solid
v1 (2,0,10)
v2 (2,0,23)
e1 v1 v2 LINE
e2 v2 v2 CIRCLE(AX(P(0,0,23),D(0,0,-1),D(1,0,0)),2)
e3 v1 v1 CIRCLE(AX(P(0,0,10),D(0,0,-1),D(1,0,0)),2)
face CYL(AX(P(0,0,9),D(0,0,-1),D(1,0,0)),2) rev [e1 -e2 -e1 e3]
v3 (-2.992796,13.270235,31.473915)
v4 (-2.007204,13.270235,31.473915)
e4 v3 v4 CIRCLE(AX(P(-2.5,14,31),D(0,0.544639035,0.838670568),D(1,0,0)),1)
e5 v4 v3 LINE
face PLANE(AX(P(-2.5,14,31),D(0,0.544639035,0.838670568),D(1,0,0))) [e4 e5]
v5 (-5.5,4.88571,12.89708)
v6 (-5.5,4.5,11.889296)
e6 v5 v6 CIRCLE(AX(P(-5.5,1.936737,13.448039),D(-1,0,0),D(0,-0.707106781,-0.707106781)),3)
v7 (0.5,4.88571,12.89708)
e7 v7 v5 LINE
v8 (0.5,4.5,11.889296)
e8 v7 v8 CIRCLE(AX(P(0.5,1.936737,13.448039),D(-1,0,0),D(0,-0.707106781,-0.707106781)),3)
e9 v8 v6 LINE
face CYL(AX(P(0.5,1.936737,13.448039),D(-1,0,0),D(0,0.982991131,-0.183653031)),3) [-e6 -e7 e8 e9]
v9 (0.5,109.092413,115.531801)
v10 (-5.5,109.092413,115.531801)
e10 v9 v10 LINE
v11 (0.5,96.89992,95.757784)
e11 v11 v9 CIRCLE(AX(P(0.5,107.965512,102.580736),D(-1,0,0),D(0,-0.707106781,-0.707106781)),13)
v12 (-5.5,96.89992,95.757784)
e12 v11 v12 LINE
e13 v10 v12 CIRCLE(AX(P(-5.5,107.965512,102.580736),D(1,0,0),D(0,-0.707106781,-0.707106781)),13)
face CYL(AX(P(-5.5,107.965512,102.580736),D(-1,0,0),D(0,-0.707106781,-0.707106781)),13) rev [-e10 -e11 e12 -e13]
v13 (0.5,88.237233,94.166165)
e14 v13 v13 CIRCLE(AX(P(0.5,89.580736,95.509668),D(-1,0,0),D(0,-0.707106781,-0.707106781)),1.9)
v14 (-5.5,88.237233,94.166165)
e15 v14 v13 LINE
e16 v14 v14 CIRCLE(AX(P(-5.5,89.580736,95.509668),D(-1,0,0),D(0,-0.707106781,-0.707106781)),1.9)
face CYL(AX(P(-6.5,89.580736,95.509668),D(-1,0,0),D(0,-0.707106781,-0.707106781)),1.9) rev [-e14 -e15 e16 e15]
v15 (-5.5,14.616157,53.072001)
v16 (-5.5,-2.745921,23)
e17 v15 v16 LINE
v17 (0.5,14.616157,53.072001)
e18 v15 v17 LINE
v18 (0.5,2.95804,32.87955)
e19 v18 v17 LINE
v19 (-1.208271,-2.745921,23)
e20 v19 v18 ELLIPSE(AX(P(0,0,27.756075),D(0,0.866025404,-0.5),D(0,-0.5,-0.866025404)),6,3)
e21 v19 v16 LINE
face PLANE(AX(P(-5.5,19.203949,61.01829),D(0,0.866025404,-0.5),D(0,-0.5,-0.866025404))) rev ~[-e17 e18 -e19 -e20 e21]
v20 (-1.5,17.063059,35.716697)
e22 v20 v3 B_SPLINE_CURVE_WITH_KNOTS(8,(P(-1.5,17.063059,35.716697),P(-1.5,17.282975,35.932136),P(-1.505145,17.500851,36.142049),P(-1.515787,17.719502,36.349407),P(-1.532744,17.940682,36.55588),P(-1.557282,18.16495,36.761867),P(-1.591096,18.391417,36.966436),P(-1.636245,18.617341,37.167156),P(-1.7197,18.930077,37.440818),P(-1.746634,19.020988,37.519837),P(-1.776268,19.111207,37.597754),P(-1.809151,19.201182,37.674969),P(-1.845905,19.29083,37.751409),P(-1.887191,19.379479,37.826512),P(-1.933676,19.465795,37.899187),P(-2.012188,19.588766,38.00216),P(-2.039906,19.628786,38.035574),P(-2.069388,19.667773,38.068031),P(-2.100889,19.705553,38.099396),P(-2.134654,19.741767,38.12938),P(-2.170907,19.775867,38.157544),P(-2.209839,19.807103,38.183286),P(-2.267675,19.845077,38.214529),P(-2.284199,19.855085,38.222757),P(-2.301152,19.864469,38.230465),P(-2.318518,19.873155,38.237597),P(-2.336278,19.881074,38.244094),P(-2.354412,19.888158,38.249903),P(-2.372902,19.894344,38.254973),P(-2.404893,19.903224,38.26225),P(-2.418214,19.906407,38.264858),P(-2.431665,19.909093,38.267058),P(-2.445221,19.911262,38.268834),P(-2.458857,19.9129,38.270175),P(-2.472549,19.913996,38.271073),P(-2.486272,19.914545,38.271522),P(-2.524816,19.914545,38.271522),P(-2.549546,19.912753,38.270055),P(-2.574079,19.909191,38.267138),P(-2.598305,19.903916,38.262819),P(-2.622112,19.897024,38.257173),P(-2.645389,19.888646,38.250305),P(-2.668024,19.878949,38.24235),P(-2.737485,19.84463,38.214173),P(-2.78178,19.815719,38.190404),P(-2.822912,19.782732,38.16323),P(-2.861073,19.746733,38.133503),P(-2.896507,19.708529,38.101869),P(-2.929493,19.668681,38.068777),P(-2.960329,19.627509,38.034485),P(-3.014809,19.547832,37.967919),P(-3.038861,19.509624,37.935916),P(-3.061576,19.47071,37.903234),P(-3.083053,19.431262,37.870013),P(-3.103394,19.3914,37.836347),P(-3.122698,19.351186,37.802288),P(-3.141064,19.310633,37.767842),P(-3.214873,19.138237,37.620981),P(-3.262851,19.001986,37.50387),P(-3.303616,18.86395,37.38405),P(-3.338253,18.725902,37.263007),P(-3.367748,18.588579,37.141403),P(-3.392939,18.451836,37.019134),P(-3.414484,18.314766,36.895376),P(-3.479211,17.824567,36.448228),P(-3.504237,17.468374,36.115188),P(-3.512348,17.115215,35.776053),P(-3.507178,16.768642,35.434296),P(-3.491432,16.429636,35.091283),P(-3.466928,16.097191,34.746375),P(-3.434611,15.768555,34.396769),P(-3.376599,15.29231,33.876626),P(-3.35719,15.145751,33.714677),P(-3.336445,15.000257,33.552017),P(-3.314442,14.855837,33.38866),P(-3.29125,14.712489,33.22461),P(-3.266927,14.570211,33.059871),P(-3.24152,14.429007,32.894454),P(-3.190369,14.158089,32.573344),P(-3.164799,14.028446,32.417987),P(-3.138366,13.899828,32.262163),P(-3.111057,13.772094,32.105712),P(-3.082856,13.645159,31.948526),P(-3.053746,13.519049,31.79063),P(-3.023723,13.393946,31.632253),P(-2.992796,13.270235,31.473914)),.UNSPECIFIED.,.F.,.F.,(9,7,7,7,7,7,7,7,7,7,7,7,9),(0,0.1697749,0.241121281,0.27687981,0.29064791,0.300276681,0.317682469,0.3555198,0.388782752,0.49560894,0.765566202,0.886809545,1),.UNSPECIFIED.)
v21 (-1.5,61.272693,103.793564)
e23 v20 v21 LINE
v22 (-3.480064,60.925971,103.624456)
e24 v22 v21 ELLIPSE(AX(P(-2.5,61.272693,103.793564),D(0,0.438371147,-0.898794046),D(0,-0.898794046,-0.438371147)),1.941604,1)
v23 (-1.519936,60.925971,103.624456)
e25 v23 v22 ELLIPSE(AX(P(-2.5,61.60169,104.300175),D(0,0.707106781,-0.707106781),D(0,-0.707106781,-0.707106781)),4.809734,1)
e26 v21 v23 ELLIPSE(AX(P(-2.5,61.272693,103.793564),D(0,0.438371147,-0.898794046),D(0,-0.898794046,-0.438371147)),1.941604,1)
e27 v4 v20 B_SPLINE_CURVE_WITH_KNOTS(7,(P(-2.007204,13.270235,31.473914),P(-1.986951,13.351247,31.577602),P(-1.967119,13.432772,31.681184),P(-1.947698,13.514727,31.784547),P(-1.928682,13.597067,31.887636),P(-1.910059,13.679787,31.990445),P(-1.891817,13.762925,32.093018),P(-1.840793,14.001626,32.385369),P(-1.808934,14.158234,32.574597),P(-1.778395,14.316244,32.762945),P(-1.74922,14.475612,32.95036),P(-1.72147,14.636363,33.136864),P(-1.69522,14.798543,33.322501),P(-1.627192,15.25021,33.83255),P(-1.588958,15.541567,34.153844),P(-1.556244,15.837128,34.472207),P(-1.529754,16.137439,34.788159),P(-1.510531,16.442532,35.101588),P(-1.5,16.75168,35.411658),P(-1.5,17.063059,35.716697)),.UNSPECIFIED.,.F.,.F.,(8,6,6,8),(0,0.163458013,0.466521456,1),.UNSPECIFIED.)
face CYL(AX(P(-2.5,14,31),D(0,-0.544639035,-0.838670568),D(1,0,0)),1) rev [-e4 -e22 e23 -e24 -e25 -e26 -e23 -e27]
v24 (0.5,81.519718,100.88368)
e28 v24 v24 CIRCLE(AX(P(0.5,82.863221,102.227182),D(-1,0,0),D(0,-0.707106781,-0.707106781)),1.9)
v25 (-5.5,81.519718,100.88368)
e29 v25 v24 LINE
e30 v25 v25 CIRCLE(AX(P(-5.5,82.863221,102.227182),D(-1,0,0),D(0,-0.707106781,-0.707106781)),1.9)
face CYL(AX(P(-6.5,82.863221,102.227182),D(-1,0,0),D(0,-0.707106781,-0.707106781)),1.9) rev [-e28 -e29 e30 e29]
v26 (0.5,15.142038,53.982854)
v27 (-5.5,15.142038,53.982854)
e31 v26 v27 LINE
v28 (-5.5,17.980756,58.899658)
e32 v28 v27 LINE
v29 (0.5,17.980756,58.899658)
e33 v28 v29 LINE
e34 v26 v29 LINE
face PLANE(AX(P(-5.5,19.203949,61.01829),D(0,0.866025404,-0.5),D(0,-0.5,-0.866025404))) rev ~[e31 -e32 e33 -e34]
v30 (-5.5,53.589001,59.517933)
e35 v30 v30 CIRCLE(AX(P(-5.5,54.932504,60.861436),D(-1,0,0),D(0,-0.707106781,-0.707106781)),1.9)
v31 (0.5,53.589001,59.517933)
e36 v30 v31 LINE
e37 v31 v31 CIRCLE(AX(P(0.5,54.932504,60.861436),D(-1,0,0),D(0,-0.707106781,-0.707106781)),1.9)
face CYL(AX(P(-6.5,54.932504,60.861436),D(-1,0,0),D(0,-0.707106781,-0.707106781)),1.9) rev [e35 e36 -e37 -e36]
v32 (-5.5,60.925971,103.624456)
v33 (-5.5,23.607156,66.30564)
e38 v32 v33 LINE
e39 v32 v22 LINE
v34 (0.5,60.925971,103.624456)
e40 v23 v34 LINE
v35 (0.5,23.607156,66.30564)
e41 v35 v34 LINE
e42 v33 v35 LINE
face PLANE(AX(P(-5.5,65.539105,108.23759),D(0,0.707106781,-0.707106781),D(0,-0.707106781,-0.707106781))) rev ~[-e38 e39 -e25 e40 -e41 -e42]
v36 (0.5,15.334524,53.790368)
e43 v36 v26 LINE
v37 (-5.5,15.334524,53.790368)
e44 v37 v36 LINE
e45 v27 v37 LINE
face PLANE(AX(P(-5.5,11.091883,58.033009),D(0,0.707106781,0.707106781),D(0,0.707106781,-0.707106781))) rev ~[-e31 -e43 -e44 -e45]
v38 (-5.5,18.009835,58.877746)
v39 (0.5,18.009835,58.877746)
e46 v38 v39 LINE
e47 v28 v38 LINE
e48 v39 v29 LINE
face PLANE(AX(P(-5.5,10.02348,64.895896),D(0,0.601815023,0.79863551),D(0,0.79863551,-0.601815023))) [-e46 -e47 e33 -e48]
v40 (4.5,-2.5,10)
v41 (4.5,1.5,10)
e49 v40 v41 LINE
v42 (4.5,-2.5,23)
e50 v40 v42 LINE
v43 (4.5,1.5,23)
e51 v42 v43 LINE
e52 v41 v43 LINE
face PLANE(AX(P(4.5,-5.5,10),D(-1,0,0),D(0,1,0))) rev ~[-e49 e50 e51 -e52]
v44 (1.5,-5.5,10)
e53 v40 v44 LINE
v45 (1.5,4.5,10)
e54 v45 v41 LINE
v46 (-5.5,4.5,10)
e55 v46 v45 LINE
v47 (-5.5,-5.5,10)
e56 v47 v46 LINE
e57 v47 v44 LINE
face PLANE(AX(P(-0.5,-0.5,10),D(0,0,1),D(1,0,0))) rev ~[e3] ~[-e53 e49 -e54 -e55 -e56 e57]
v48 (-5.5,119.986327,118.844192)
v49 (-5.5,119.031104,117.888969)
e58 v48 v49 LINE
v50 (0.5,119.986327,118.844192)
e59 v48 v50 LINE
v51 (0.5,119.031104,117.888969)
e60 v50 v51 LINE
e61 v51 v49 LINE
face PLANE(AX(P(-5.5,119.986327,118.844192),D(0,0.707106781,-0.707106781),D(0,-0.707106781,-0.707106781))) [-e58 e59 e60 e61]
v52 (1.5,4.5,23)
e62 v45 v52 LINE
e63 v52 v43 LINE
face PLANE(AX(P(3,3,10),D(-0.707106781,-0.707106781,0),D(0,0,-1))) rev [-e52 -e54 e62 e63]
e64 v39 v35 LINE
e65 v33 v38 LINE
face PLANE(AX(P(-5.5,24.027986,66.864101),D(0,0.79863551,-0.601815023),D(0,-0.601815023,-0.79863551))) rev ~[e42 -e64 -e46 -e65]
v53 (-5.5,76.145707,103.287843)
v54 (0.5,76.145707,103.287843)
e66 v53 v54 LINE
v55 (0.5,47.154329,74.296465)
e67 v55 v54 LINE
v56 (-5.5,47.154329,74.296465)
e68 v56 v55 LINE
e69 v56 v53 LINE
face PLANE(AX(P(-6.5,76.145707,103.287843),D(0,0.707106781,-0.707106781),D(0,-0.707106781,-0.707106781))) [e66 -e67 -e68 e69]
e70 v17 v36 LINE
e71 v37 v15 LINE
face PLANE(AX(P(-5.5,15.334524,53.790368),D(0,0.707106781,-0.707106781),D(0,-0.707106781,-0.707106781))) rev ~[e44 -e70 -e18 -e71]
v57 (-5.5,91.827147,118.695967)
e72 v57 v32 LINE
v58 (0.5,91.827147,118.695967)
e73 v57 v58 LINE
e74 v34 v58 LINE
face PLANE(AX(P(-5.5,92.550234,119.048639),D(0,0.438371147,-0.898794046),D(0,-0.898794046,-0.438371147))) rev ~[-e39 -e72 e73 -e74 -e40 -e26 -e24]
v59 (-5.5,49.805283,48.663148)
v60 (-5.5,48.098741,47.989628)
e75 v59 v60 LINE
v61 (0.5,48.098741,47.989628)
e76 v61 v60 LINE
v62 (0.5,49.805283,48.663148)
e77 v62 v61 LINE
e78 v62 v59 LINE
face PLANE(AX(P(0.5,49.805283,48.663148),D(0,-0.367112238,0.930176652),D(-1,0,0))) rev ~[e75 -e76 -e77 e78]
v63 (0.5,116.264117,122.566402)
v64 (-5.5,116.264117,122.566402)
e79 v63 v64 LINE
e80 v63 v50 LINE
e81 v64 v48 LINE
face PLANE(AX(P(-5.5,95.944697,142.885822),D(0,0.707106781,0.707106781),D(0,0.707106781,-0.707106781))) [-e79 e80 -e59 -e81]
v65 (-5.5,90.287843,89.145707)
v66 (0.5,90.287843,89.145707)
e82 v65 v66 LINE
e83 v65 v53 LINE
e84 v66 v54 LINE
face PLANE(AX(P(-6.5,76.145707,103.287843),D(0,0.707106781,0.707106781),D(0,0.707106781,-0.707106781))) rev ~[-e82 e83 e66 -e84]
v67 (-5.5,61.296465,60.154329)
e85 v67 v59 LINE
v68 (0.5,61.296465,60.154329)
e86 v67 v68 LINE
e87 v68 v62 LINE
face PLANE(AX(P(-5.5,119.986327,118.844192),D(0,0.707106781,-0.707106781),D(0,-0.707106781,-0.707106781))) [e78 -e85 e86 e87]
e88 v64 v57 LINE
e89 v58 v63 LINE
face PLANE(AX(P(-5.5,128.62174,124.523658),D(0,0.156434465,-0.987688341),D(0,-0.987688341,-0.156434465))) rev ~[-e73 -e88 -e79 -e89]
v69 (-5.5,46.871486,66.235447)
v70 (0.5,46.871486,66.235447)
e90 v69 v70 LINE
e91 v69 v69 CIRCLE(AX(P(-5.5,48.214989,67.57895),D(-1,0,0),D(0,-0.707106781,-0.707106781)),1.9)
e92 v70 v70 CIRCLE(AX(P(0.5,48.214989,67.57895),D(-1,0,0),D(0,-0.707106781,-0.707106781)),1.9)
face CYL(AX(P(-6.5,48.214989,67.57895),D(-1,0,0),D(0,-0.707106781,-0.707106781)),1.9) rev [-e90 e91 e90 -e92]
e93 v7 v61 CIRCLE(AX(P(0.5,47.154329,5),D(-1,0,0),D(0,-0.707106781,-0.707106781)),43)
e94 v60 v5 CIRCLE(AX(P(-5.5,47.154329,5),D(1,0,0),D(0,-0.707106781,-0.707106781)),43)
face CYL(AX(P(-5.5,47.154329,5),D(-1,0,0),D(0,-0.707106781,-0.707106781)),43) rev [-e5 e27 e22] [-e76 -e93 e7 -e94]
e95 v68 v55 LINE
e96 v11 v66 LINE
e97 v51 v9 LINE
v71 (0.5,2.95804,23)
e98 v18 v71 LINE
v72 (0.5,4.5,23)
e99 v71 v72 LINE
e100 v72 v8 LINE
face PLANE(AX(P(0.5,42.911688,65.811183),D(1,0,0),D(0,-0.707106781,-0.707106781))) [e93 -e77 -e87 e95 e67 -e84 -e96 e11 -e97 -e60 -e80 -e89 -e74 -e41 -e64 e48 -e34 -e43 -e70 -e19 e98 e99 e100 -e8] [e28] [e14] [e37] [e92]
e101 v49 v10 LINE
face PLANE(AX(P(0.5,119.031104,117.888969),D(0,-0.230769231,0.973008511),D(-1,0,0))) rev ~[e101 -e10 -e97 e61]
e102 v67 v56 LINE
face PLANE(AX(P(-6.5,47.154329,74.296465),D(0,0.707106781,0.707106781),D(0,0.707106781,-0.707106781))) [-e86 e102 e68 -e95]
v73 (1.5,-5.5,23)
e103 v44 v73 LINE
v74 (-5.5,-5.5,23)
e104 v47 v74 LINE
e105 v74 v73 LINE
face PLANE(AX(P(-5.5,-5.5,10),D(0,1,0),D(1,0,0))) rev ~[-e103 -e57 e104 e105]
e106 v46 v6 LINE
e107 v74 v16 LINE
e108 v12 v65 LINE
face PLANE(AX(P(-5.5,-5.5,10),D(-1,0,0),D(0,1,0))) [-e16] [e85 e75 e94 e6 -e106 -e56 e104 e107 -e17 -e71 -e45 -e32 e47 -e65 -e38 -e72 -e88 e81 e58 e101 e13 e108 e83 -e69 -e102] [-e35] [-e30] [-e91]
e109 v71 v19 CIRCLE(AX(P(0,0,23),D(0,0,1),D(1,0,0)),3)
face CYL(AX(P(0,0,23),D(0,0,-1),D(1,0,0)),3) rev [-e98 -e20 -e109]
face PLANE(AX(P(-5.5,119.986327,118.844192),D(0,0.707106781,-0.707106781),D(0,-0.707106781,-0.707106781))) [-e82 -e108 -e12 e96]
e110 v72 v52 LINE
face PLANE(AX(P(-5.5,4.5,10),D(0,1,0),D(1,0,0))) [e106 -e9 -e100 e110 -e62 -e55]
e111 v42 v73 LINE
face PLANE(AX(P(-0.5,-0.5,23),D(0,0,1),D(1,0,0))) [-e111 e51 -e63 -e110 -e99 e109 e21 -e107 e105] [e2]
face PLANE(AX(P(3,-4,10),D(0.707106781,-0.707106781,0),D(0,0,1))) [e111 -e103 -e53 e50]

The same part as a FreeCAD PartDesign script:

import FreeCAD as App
import Part
import Sketcher

V = App.Vector
Q = App.Units.Quantity


def edges_at(feature, points):
    """Names of the edges that pass closest to the given points."""
    edges = feature.Shape.Edges
    near = lambda p: min(range(len(edges)), key=lambda i: edges[i].distToShape(Part.Vertex(*p))[0])
    return sorted({f"Edge{near(p) + 1}" for p in points})

doc = App.newDocument("Part")
body = doc.addObject("PartDesign::Body", "Body")

# Sketch on XY plane
sketch1 = body.newObject("Sketcher::SketchObject", "Sketch")
sketch1.AttachmentSupport = (doc.getObject("XY_Plane"), [""])
sketch1.MapMode = "FlatFace"
sketch1.addGeometry(Part.Circle(V(0, 0, 0), V(0, 0, 1), 1), False)
sketch1.addConstraint(Sketcher.Constraint("Coincident", 0, 3, -1, 1))
sketch1.addConstraint(Sketcher.Constraint("Diameter", 0, Q("2 mm")))
pad1 = body.newObject("PartDesign::Pad", "Pad")
pad1.Profile = sketch1
pad1.Length = 96
body2 = doc.addObject("PartDesign::Body", "Body001")
doc.recompute()

body.Placement = App.Placement(V(0, 0, 0), App.Rotation(V(1, 0, 0), 327))
boolean = body2.newObject("PartDesign::Boolean", "Boolean")
boolean.Type = "Fuse"
boolean.addObjects([body])
body3 = doc.addObject("PartDesign::Body", "Body002")
doc.recompute()

body2.Placement = App.Placement(V(-2.5, 14, 31), App.Rotation(V(0, 0, 1), 0))
boolean2 = body3.newObject("PartDesign::Boolean", "Boolean001")
boolean2.Type = "Fuse"
boolean2.addObjects([body2])
body4 = doc.addObject("PartDesign::Body", "Body003")

# Sketch on XY plane
sketch2 = body4.newObject("Sketcher::SketchObject", "Sketch001")
sketch2.AttachmentSupport = (doc.getObject("XY_Plane003"), [""])
sketch2.MapMode = "FlatFace"
sketch2.AttachmentOffset = App.Placement(V(0, 0, 9), App.Rotation())
sketch2.addGeometry(Part.Circle(V(0, 0, 0), V(0, 0, 1), 2), False)
sketch2.addConstraint(Sketcher.Constraint("Coincident", 0, 3, -1, 1))
sketch2.addConstraint(Sketcher.Constraint("Diameter", 0, Q("4 mm")))
pad2 = body4.newObject("PartDesign::Pad", "Pad001")
pad2.Profile = sketch2
pad2.Length = 16
body5 = doc.addObject("PartDesign::Body", "Body004")

# Sketch on XY plane
sketch3 = body5.newObject("Sketcher::SketchObject", "Sketch002")
sketch3.AttachmentSupport = (doc.getObject("XY_Plane004"), [""])
sketch3.MapMode = "FlatFace"
sketch3.AttachmentOffset = App.Placement(V(0, 0, 23), App.Rotation())
sketch3.addGeometry(Part.Circle(V(0, 0, 0), V(0, 0, 1), 3), False)
sketch3.addConstraint(Sketcher.Constraint("Coincident", 0, 3, -1, 1))
sketch3.addConstraint(Sketcher.Constraint("Diameter", 0, Q("6 mm")))
pad3 = body5.newObject("PartDesign::Pad", "Pad002")
pad3.Profile = sketch3
pad3.Length = 16
body6 = doc.addObject("PartDesign::Body", "Body005")

# Sketch on XY plane
sketch4 = body6.newObject("Sketcher::SketchObject", "Sketch003")
sketch4.AttachmentSupport = (doc.getObject("XY_Plane005"), [""])
sketch4.MapMode = "FlatFace"
sketch4.AttachmentOffset = App.Placement(V(0, 0, 23), App.Rotation())
sketch4.addGeometry(Part.Circle(V(0, -50, 0), V(0, 0, 1), 3), False)
sketch4.addConstraint(Sketcher.Constraint("PointOnObject", 0, 3, -2))
sketch4.addConstraint(Sketcher.Constraint("Diameter", 0, Q("6 mm")))
sketch4.addConstraint(Sketcher.Constraint("DistanceY", 0, 3, -1, 1, Q("50 mm")))
pad4 = body6.newObject("PartDesign::Pad", "Pad003")
pad4.Profile = sketch4
pad4.Length = 16
body7 = doc.addObject("PartDesign::Body", "Body006")

# Sketch on XY plane
sketch5 = body7.newObject("Sketcher::SketchObject", "Sketch004")
sketch5.AttachmentSupport = (doc.getObject("XY_Plane006"), [""])
sketch5.MapMode = "FlatFace"
sketch5.AttachmentOffset = App.Placement(V(0, 0, -3), App.Rotation())
sketch5.addGeometry(Part.LineSegment(V(161, 38, 0), V(161, 15, 0)), False)
sketch5.addGeometry(Part.LineSegment(V(161, 15, 0), V(187, 15, 0)), False)
sketch5.addGeometry(Part.LineSegment(V(187, 15, 0), V(187, 38, 0)), False)
sketch5.addGeometry(Part.LineSegment(V(187, 38, 0), V(161, 38, 0)), False)
sketch5.addConstraint(Sketcher.Constraint("Coincident", 0, 2, 1, 1))
sketch5.addConstraint(Sketcher.Constraint("Coincident", 1, 2, 2, 1))
sketch5.addConstraint(Sketcher.Constraint("Coincident", 2, 2, 3, 1))
sketch5.addConstraint(Sketcher.Constraint("Coincident", 3, 2, 0, 1))
sketch5.addConstraint(Sketcher.Constraint("Vertical", 0))
sketch5.addConstraint(Sketcher.Constraint("Horizontal", 1))
sketch5.addConstraint(Sketcher.Constraint("Vertical", 2))
sketch5.addConstraint(Sketcher.Constraint("Horizontal", 3))
sketch5.addConstraint(Sketcher.Constraint("DistanceX", 1, 1, 1, 2, Q("26 mm")))
sketch5.addConstraint(Sketcher.Constraint("DistanceY", 0, 2, 0, 1, Q("23 mm")))
sketch5.addConstraint(Sketcher.Constraint("DistanceX", -1, 1, 0, 2, Q("161 mm")))
sketch5.addConstraint(Sketcher.Constraint("DistanceY", -1, 1, 0, 2, Q("15 mm")))
pad5 = body7.newObject("PartDesign::Pad", "Pad004")
pad5.Profile = sketch5
pad5.Length = 13
body8 = doc.addObject("PartDesign::Body", "Body007")

# Sketch on XY plane
sketch6 = body8.newObject("Sketcher::SketchObject", "Sketch005")
sketch6.AttachmentSupport = (doc.getObject("XY_Plane007"), [""])
sketch6.MapMode = "FlatFace"
sketch6.AttachmentOffset = App.Placement(V(0, 0, -1), App.Rotation())
sketch6.addGeometry(Part.Circle(V(38, 19.5, 0), V(0, 0, 1), 1.9), False)
sketch6.addConstraint(Sketcher.Constraint("Diameter", 0, Q("3.8 mm")))
sketch6.addConstraint(Sketcher.Constraint("DistanceX", -1, 1, 0, 3, Q("38 mm")))
sketch6.addConstraint(Sketcher.Constraint("DistanceY", -1, 1, 0, 3, Q("19.5 mm")))
pad6 = body8.newObject("PartDesign::Pad", "Pad005")
pad6.Profile = sketch6
pad6.Length = 12
body9 = doc.addObject("PartDesign::Body", "Body008")

# Sketch on XY plane
sketch7 = body9.newObject("Sketcher::SketchObject", "Sketch006")
sketch7.AttachmentSupport = (doc.getObject("XY_Plane008"), [""])
sketch7.MapMode = "FlatFace"
sketch7.AttachmentOffset = App.Placement(V(0, 0, -1), App.Rotation())
sketch7.addGeometry(Part.Circle(V(38, 29, 0), V(0, 0, 1), 1.9), False)
sketch7.addConstraint(Sketcher.Constraint("Diameter", 0, Q("3.8 mm")))
sketch7.addConstraint(Sketcher.Constraint("DistanceX", -1, 1, 0, 3, Q("38 mm")))
sketch7.addConstraint(Sketcher.Constraint("DistanceY", -1, 1, 0, 3, Q("29 mm")))
pad7 = body9.newObject("PartDesign::Pad", "Pad006")
pad7.Profile = sketch7
pad7.Length = 12
body10 = doc.addObject("PartDesign::Body", "Body009")

# Sketch on XY plane
sketch8 = body10.newObject("Sketcher::SketchObject", "Sketch007")
sketch8.AttachmentSupport = (doc.getObject("XY_Plane009"), [""])
sketch8.MapMode = "FlatFace"
sketch8.AttachmentOffset = App.Placement(V(0, 0, -1), App.Rotation())
sketch8.addGeometry(Part.Circle(V(87, 29, 0), V(0, 0, 1), 1.9), False)
sketch8.addConstraint(Sketcher.Constraint("Diameter", 0, Q("3.8 mm")))
sketch8.addConstraint(Sketcher.Constraint("DistanceX", -1, 1, 0, 3, Q("87 mm")))
sketch8.addConstraint(Sketcher.Constraint("DistanceY", -1, 1, 0, 3, Q("29 mm")))
pad8 = body10.newObject("PartDesign::Pad", "Pad007")
pad8.Profile = sketch8
pad8.Length = 12
body11 = doc.addObject("PartDesign::Body", "Body010")

# Sketch on XY plane
sketch9 = body11.newObject("Sketcher::SketchObject", "Sketch008")
sketch9.AttachmentSupport = (doc.getObject("XY_Plane010"), [""])
sketch9.MapMode = "FlatFace"
sketch9.AttachmentOffset = App.Placement(V(0, 0, -1), App.Rotation())
sketch9.addGeometry(Part.Circle(V(87, 19.5, 0), V(0, 0, 1), 1.9), False)
sketch9.addConstraint(Sketcher.Constraint("Diameter", 0, Q("3.8 mm")))
sketch9.addConstraint(Sketcher.Constraint("DistanceX", -1, 1, 0, 3, Q("87 mm")))
sketch9.addConstraint(Sketcher.Constraint("DistanceY", -1, 1, 0, 3, Q("19.5 mm")))
pad9 = body11.newObject("PartDesign::Pad", "Pad008")
pad9.Profile = sketch9
pad9.Length = 12
body12 = doc.addObject("PartDesign::Body", "Body011")

# Sketch on XY plane
sketch10 = body12.newObject("Sketcher::SketchObject", "Sketch009")
sketch10.AttachmentSupport = (doc.getObject("XY_Plane011"), [""])
sketch10.MapMode = "FlatFace"
sketch10.AttachmentOffset = App.Placement(V(0, 0, -1), App.Rotation())
sketch10.addGeometry(Part.LineSegment(V(42, 34, 0), V(42, 14, 0)), False)
sketch10.addGeometry(Part.LineSegment(V(42, 14, 0), V(83, 14, 0)), False)
sketch10.addGeometry(Part.LineSegment(V(83, 14, 0), V(83, 34, 0)), False)
sketch10.addGeometry(Part.LineSegment(V(83, 34, 0), V(42, 34, 0)), False)
sketch10.addConstraint(Sketcher.Constraint("Coincident", 0, 2, 1, 1))
sketch10.addConstraint(Sketcher.Constraint("Coincident", 1, 2, 2, 1))
sketch10.addConstraint(Sketcher.Constraint("Coincident", 2, 2, 3, 1))
sketch10.addConstraint(Sketcher.Constraint("Coincident", 3, 2, 0, 1))
sketch10.addConstraint(Sketcher.Constraint("Vertical", 0))
sketch10.addConstraint(Sketcher.Constraint("Horizontal", 1))
sketch10.addConstraint(Sketcher.Constraint("Vertical", 2))
sketch10.addConstraint(Sketcher.Constraint("Horizontal", 3))
sketch10.addConstraint(Sketcher.Constraint("DistanceX", 1, 1, 1, 2, Q("41 mm")))
sketch10.addConstraint(Sketcher.Constraint("DistanceY", 0, 2, 0, 1, Q("20 mm")))
sketch10.addConstraint(Sketcher.Constraint("DistanceX", -1, 1, 0, 2, Q("42 mm")))
sketch10.addConstraint(Sketcher.Constraint("DistanceY", -1, 1, 0, 2, Q("14 mm")))
pad10 = body12.newObject("PartDesign::Pad", "Pad009")
pad10.Profile = sketch10
pad10.Length = 12
body13 = doc.addObject("PartDesign::Body", "Body012")

# Sketch on XY plane
sketch11 = body13.newObject("Sketcher::SketchObject", "Sketch010")
sketch11.AttachmentSupport = (doc.getObject("XY_Plane012"), [""])
sketch11.MapMode = "FlatFace"
sketch11.addGeometry(Part.LineSegment(V(0, 10, 0), V(0, 0, 0)), False)
sketch11.addGeometry(Part.LineSegment(V(0, 0, 0), V(10, 0, 0)), False)
sketch11.addGeometry(Part.LineSegment(V(10, 0, 0), V(10, 10, 0)), False)
sketch11.addGeometry(Part.LineSegment(V(10, 10, 0), V(0, 10, 0)), False)
sketch11.addConstraint(Sketcher.Constraint("Coincident", 0, 2, 1, 1))
sketch11.addConstraint(Sketcher.Constraint("Coincident", 1, 2, 2, 1))
sketch11.addConstraint(Sketcher.Constraint("Coincident", 2, 2, 3, 1))
sketch11.addConstraint(Sketcher.Constraint("Coincident", 3, 2, 0, 1))
sketch11.addConstraint(Sketcher.Constraint("Vertical", 0))
sketch11.addConstraint(Sketcher.Constraint("Horizontal", 1))
sketch11.addConstraint(Sketcher.Constraint("Vertical", 2))
sketch11.addConstraint(Sketcher.Constraint("Horizontal", 3))
sketch11.addConstraint(Sketcher.Constraint("Coincident", 0, 2, -1, 1))
sketch11.addConstraint(Sketcher.Constraint("Equal", 3, 0))
sketch11.addConstraint(Sketcher.Constraint("DistanceX", 1, 1, 1, 2, Q("10 mm")))
pad11 = body13.newObject("PartDesign::Pad", "Pad010")
pad11.Profile = sketch11
pad11.Length = 10
body14 = doc.addObject("PartDesign::Body", "Body013")
doc.recompute()

body13.Placement = App.Placement(V(106, -7, 0), App.Rotation(V(0, 0, 1), 8))
boolean3 = body14.newObject("PartDesign::Boolean", "Boolean002")
boolean3.Type = "Fuse"
boolean3.addObjects([body13])
body15 = doc.addObject("PartDesign::Body", "Body014")

# Sketch on XY plane
sketch12 = body15.newObject("Sketcher::SketchObject", "Sketch011")
sketch12.AttachmentSupport = (doc.getObject("XY_Plane014"), [""])
sketch12.MapMode = "FlatFace"
sketch12.addGeometry(Part.LineSegment(V(0, 10, 0), V(0, 0, 0)), False)
sketch12.addGeometry(Part.LineSegment(V(0, 0, 0), V(14, 0, 0)), False)
sketch12.addGeometry(Part.LineSegment(V(14, 0, 0), V(14, 10, 0)), False)
sketch12.addGeometry(Part.LineSegment(V(14, 10, 0), V(0, 10, 0)), False)
sketch12.addConstraint(Sketcher.Constraint("Coincident", 0, 2, 1, 1))
sketch12.addConstraint(Sketcher.Constraint("Coincident", 1, 2, 2, 1))
sketch12.addConstraint(Sketcher.Constraint("Coincident", 2, 2, 3, 1))
sketch12.addConstraint(Sketcher.Constraint("Coincident", 3, 2, 0, 1))
sketch12.addConstraint(Sketcher.Constraint("Vertical", 0))
sketch12.addConstraint(Sketcher.Constraint("Horizontal", 1))
sketch12.addConstraint(Sketcher.Constraint("Vertical", 2))
sketch12.addConstraint(Sketcher.Constraint("Horizontal", 3))
sketch12.addConstraint(Sketcher.Constraint("Coincident", 0, 2, -1, 1))
sketch12.addConstraint(Sketcher.Constraint("DistanceX", 1, 1, 1, 2, Q("14 mm")))
sketch12.addConstraint(Sketcher.Constraint("DistanceY", 0, 2, 0, 1, Q("10 mm")))
pad12 = body15.newObject("PartDesign::Pad", "Pad011")
pad12.Profile = sketch12
pad12.Length = 10
body16 = doc.addObject("PartDesign::Body", "Body015")
doc.recompute()

body15.Placement = App.Placement(V(174, 10, 0), App.Rotation(V(0, 0, 1), 16))
boolean4 = body16.newObject("PartDesign::Boolean", "Boolean003")
boolean4.Type = "Fuse"
boolean4.addObjects([body15])
body17 = doc.addObject("PartDesign::Body", "Body016")

# Sketch on XY plane
sketch13 = body17.newObject("Sketcher::SketchObject", "Sketch012")
sketch13.AttachmentSupport = (doc.getObject("XY_Plane016"), [""])
sketch13.MapMode = "FlatFace"
sketch13.addGeometry(Part.LineSegment(V(0, 11, 0), V(0, 0, 0)), False)
sketch13.addGeometry(Part.LineSegment(V(0, 0, 0), V(65, 0, 0)), False)
sketch13.addGeometry(Part.LineSegment(V(65, 0, 0), V(65, 11, 0)), False)
sketch13.addGeometry(Part.LineSegment(V(65, 11, 0), V(0, 11, 0)), False)
sketch13.addConstraint(Sketcher.Constraint("Coincident", 0, 2, 1, 1))
sketch13.addConstraint(Sketcher.Constraint("Coincident", 1, 2, 2, 1))
sketch13.addConstraint(Sketcher.Constraint("Coincident", 2, 2, 3, 1))
sketch13.addConstraint(Sketcher.Constraint("Coincident", 3, 2, 0, 1))
sketch13.addConstraint(Sketcher.Constraint("Vertical", 0))
sketch13.addConstraint(Sketcher.Constraint("Horizontal", 1))
sketch13.addConstraint(Sketcher.Constraint("Vertical", 2))
sketch13.addConstraint(Sketcher.Constraint("Horizontal", 3))
sketch13.addConstraint(Sketcher.Constraint("Coincident", 0, 2, -1, 1))
sketch13.addConstraint(Sketcher.Constraint("DistanceX", 1, 1, 1, 2, Q("65 mm")))
sketch13.addConstraint(Sketcher.Constraint("DistanceY", 0, 2, 0, 1, Q("11 mm")))
pad13 = body17.newObject("PartDesign::Pad", "Pad012")
pad13.Profile = sketch13
pad13.Length = 10
body18 = doc.addObject("PartDesign::Body", "Body017")
doc.recompute()

body17.Placement = App.Placement(V(115, -7, 0), App.Rotation(V(0, 0, 1), 15))
boolean5 = body18.newObject("PartDesign::Boolean", "Boolean004")
boolean5.Type = "Fuse"
boolean5.addObjects([body17])
body19 = doc.addObject("PartDesign::Body", "Body018")

# Sketch on XY plane
sketch14 = body19.newObject("Sketcher::SketchObject", "Sketch013")
sketch14.AttachmentSupport = (doc.getObject("XY_Plane018"), [""])
sketch14.MapMode = "FlatFace"
sketch14.addGeometry(Part.LineSegment(V(46, 3, 0), V(46, -7, 0)), False)
sketch14.addGeometry(Part.LineSegment(V(46, -7, 0), V(122, -7, 0)), False)
sketch14.addGeometry(Part.LineSegment(V(122, -7, 0), V(122, 3, 0)), False)
sketch14.addGeometry(Part.LineSegment(V(122, 3, 0), V(46, 3, 0)), False)
sketch14.addConstraint(Sketcher.Constraint("Coincident", 0, 2, 1, 1))
sketch14.addConstraint(Sketcher.Constraint("Coincident", 1, 2, 2, 1))
sketch14.addConstraint(Sketcher.Constraint("Coincident", 2, 2, 3, 1))
sketch14.addConstraint(Sketcher.Constraint("Coincident", 3, 2, 0, 1))
sketch14.addConstraint(Sketcher.Constraint("Vertical", 0))
sketch14.addConstraint(Sketcher.Constraint("Horizontal", 1))
sketch14.addConstraint(Sketcher.Constraint("Vertical", 2))
sketch14.addConstraint(Sketcher.Constraint("Horizontal", 3))
sketch14.addConstraint(Sketcher.Constraint("DistanceX", 1, 1, 1, 2, Q("76 mm")))
sketch14.addConstraint(Sketcher.Constraint("DistanceY", 0, 2, 0, 1, Q("10 mm")))
sketch14.addConstraint(Sketcher.Constraint("DistanceX", -1, 1, 0, 2, Q("46 mm")))
sketch14.addConstraint(Sketcher.Constraint("DistanceY", 0, 2, -1, 1, Q("7 mm")))
pad14 = body19.newObject("PartDesign::Pad", "Pad013")
pad14.Profile = sketch14
pad14.Length = 10
body20 = doc.addObject("PartDesign::Body", "Body019")

# Sketch on XY plane
sketch15 = body20.newObject("Sketcher::SketchObject", "Sketch014")
sketch15.AttachmentSupport = (doc.getObject("XY_Plane019"), [""])
sketch15.MapMode = "FlatFace"
sketch15.addGeometry(Part.LineSegment(V(0, 10, 0), V(0, 0, 0)), False)
sketch15.addGeometry(Part.LineSegment(V(0, 0, 0), V(49, 0, 0)), False)
sketch15.addGeometry(Part.LineSegment(V(49, 0, 0), V(49, 10, 0)), False)
sketch15.addGeometry(Part.LineSegment(V(49, 10, 0), V(0, 10, 0)), False)
sketch15.addConstraint(Sketcher.Constraint("Coincident", 0, 2, 1, 1))
sketch15.addConstraint(Sketcher.Constraint("Coincident", 1, 2, 2, 1))
sketch15.addConstraint(Sketcher.Constraint("Coincident", 2, 2, 3, 1))
sketch15.addConstraint(Sketcher.Constraint("Coincident", 3, 2, 0, 1))
sketch15.addConstraint(Sketcher.Constraint("Vertical", 0))
sketch15.addConstraint(Sketcher.Constraint("Horizontal", 1))
sketch15.addConstraint(Sketcher.Constraint("Vertical", 2))
sketch15.addConstraint(Sketcher.Constraint("Horizontal", 3))
sketch15.addConstraint(Sketcher.Constraint("Coincident", 0, 2, -1, 1))
sketch15.addConstraint(Sketcher.Constraint("DistanceX", 1, 1, 1, 2, Q("49 mm")))
sketch15.addConstraint(Sketcher.Constraint("DistanceY", 0, 2, 0, 1, Q("10 mm")))
pad15 = body20.newObject("PartDesign::Pad", "Pad014")
pad15.Profile = sketch15
pad15.Length = 10
body21 = doc.addObject("PartDesign::Body", "Body020")
doc.recompute()

body20.Placement = App.Placement(V(16, 5, 0), App.Rotation(V(0, 0, 1), 341))
boolean6 = body21.newObject("PartDesign::Boolean", "Boolean005")
boolean6.Type = "Fuse"
boolean6.addObjects([body20])
body22 = doc.addObject("PartDesign::Body", "Body021")

# Sketch on XY plane
sketch16 = body22.newObject("Sketcher::SketchObject", "Sketch015")
sketch16.AttachmentSupport = (doc.getObject("XY_Plane021"), [""])
sketch16.MapMode = "FlatFace"
sketch16.addGeometry(Part.LineSegment(V(0, 10, 0), V(0, 0, 0)), False)
sketch16.addGeometry(Part.LineSegment(V(0, 0, 0), V(53, 0, 0)), False)
sketch16.addGeometry(Part.LineSegment(V(53, 0, 0), V(53, 10, 0)), False)
sketch16.addGeometry(Part.LineSegment(V(53, 10, 0), V(0, 10, 0)), False)
sketch16.addConstraint(Sketcher.Constraint("Coincident", 0, 2, 1, 1))
sketch16.addConstraint(Sketcher.Constraint("Coincident", 1, 2, 2, 1))
sketch16.addConstraint(Sketcher.Constraint("Coincident", 2, 2, 3, 1))
sketch16.addConstraint(Sketcher.Constraint("Coincident", 3, 2, 0, 1))
sketch16.addConstraint(Sketcher.Constraint("Vertical", 0))
sketch16.addConstraint(Sketcher.Constraint("Horizontal", 1))
sketch16.addConstraint(Sketcher.Constraint("Vertical", 2))
sketch16.addConstraint(Sketcher.Constraint("Horizontal", 3))
sketch16.addConstraint(Sketcher.Constraint("Coincident", 0, 2, -1, 1))
sketch16.addConstraint(Sketcher.Constraint("DistanceX", 1, 1, 1, 2, Q("53 mm")))
sketch16.addConstraint(Sketcher.Constraint("DistanceY", 0, 2, 0, 1, Q("10 mm")))
pad16 = body22.newObject("PartDesign::Pad", "Pad015")
pad16.Profile = sketch16
pad16.Length = 10
body23 = doc.addObject("PartDesign::Body", "Body022")
doc.recompute()

body22.Placement = App.Placement(V(-16, 28, 0), App.Rotation(V(0, 0, 1), 324))
boolean7 = body23.newObject("PartDesign::Boolean", "Boolean006")
boolean7.Type = "Fuse"
boolean7.addObjects([body22])
body24 = doc.addObject("PartDesign::Body", "Body023")

# Sketch on XY plane
sketch17 = body24.newObject("Sketcher::SketchObject", "Sketch016")
sketch17.AttachmentSupport = (doc.getObject("XY_Plane023"), [""])
sketch17.MapMode = "FlatFace"
sketch17.addGeometry(Part.LineSegment(V(0, 19, 0), V(0, 8, 0)), False)
sketch17.addGeometry(Part.LineSegment(V(0, 8, 0), V(13, 8, 0)), False)
sketch17.addGeometry(Part.LineSegment(V(13, 8, 0), V(13, 19, 0)), False)
sketch17.addGeometry(Part.LineSegment(V(13, 19, 0), V(0, 19, 0)), False)
sketch17.addConstraint(Sketcher.Constraint("Coincident", 0, 2, 1, 1))
sketch17.addConstraint(Sketcher.Constraint("Coincident", 1, 2, 2, 1))
sketch17.addConstraint(Sketcher.Constraint("Coincident", 2, 2, 3, 1))
sketch17.addConstraint(Sketcher.Constraint("Coincident", 3, 2, 0, 1))
sketch17.addConstraint(Sketcher.Constraint("Vertical", 0))
sketch17.addConstraint(Sketcher.Constraint("Horizontal", 1))
sketch17.addConstraint(Sketcher.Constraint("Vertical", 2))
sketch17.addConstraint(Sketcher.Constraint("Horizontal", 3))
sketch17.addConstraint(Sketcher.Constraint("PointOnObject", 0, 2, -2))
sketch17.addConstraint(Sketcher.Constraint("DistanceX", 1, 1, 1, 2, Q("13 mm")))
sketch17.addConstraint(Sketcher.Constraint("DistanceY", 0, 2, 0, 1, Q("11 mm")))
sketch17.addConstraint(Sketcher.Constraint("DistanceY", -1, 1, 0, 2, Q("8 mm")))
pad17 = body24.newObject("PartDesign::Pad", "Pad016")
pad17.Profile = sketch17
pad17.Length = 10
body25 = doc.addObject("PartDesign::Body", "Body024")

# Sketch on XY plane
sketch18 = body25.newObject("Sketcher::SketchObject", "Sketch017")
sketch18.AttachmentSupport = (doc.getObject("XY_Plane024"), [""])
sketch18.MapMode = "FlatFace"
sketch18.addGeometry(Part.LineSegment(V(161, 17, 0), V(161, 0, 0)), False)
sketch18.addGeometry(Part.LineSegment(V(161, 0, 0), V(184, 0, 0)), False)
sketch18.addGeometry(Part.LineSegment(V(184, 0, 0), V(184, 17, 0)), False)
sketch18.addGeometry(Part.LineSegment(V(184, 17, 0), V(161, 17, 0)), False)
sketch18.addConstraint(Sketcher.Constraint("Coincident", 0, 2, 1, 1))
sketch18.addConstraint(Sketcher.Constraint("Coincident", 1, 2, 2, 1))
sketch18.addConstraint(Sketcher.Constraint("Coincident", 2, 2, 3, 1))
sketch18.addConstraint(Sketcher.Constraint("Coincident", 3, 2, 0, 1))
sketch18.addConstraint(Sketcher.Constraint("Vertical", 0))
sketch18.addConstraint(Sketcher.Constraint("Horizontal", 1))
sketch18.addConstraint(Sketcher.Constraint("Vertical", 2))
sketch18.addConstraint(Sketcher.Constraint("Horizontal", 3))
sketch18.addConstraint(Sketcher.Constraint("PointOnObject", 0, 2, -1))
sketch18.addConstraint(Sketcher.Constraint("DistanceX", 1, 1, 1, 2, Q("23 mm")))
sketch18.addConstraint(Sketcher.Constraint("DistanceY", 0, 2, 0, 1, Q("17 mm")))
sketch18.addConstraint(Sketcher.Constraint("DistanceX", -1, 1, 0, 2, Q("161 mm")))
pad18 = body25.newObject("PartDesign::Pad", "Pad017")
pad18.Profile = sketch18
pad18.Length = 10
body26 = doc.addObject("PartDesign::Body", "Body025")

# Sketch on XY plane
sketch19 = body26.newObject("Sketcher::SketchObject", "Sketch018")
sketch19.AttachmentSupport = (doc.getObject("XY_Plane025"), [""])
sketch19.MapMode = "FlatFace"
sketch19.addGeometry(Part.LineSegment(V(120, 6, 0), V(120, 0, 0)), False)
sketch19.addGeometry(Part.LineSegment(V(120, 0, 0), V(161, 0, 0)), False)
sketch19.addGeometry(Part.LineSegment(V(161, 0, 0), V(161, 6, 0)), False)
sketch19.addGeometry(Part.LineSegment(V(161, 6, 0), V(120, 6, 0)), False)
sketch19.addConstraint(Sketcher.Constraint("Coincident", 0, 2, 1, 1))
sketch19.addConstraint(Sketcher.Constraint("Coincident", 1, 2, 2, 1))
sketch19.addConstraint(Sketcher.Constraint("Coincident", 2, 2, 3, 1))
sketch19.addConstraint(Sketcher.Constraint("Coincident", 3, 2, 0, 1))
sketch19.addConstraint(Sketcher.Constraint("Vertical", 0))
sketch19.addConstraint(Sketcher.Constraint("Horizontal", 1))
sketch19.addConstraint(Sketcher.Constraint("Vertical", 2))
sketch19.addConstraint(Sketcher.Constraint("Horizontal", 3))
sketch19.addConstraint(Sketcher.Constraint("PointOnObject", 0, 2, -1))
sketch19.addConstraint(Sketcher.Constraint("DistanceX", 1, 1, 1, 2, Q("41 mm")))
sketch19.addConstraint(Sketcher.Constraint("DistanceY", 0, 2, 0, 1, Q("6 mm")))
sketch19.addConstraint(Sketcher.Constraint("DistanceX", -1, 1, 0, 2, Q("120 mm")))
pad19 = body26.newObject("PartDesign::Pad", "Pad018")
pad19.Profile = sketch19
pad19.Length = 10
body27 = doc.addObject("PartDesign::Body", "Body026")

# Sketch on XY plane
sketch20 = body27.newObject("Sketcher::SketchObject", "Sketch019")
sketch20.AttachmentSupport = (doc.getObject("XY_Plane026"), [""])
sketch20.MapMode = "FlatFace"
sketch20.addGeometry(Part.Circle(V(132, 63, 0), V(0, 0, 1), 43), False)
sketch20.addConstraint(Sketcher.Constraint("Diameter", 0, Q("86 mm")))
sketch20.addConstraint(Sketcher.Constraint("DistanceX", -1, 1, 0, 3, Q("132 mm")))
sketch20.addConstraint(Sketcher.Constraint("DistanceY", -1, 1, 0, 3, Q("63 mm")))
pad20 = body27.newObject("PartDesign::Pad", "Pad019")
pad20.Profile = sketch20
pad20.Length = 10
body28 = doc.addObject("PartDesign::Body", "Body027")

# Sketch on XY plane
sketch21 = body28.newObject("Sketcher::SketchObject", "Sketch020")
sketch21.AttachmentSupport = (doc.getObject("XY_Plane027"), [""])
sketch21.MapMode = "FlatFace"
sketch21.addGeometry(Part.Circle(V(20, 37, 0), V(0, 0, 1), 13), False)
sketch21.addConstraint(Sketcher.Constraint("Diameter", 0, Q("26 mm")))
sketch21.addConstraint(Sketcher.Constraint("DistanceX", -1, 1, 0, 3, Q("20 mm")))
sketch21.addConstraint(Sketcher.Constraint("DistanceY", -1, 1, 0, 3, Q("37 mm")))
pad21 = body28.newObject("PartDesign::Pad", "Pad020")
pad21.Profile = sketch21
pad21.Length = 10
body29 = doc.addObject("PartDesign::Body", "Body028")

# Sketch on XY plane
sketch22 = body29.newObject("Sketcher::SketchObject", "Sketch021")
sketch22.AttachmentSupport = (doc.getObject("XY_Plane028"), [""])
sketch22.MapMode = "FlatFace"
sketch22.addGeometry(Part.LineSegment(V(0, 8, 0), V(0, 0, 0)), False)
sketch22.addGeometry(Part.LineSegment(V(0, 0, 0), V(37, 0, 0)), False)
sketch22.addGeometry(Part.LineSegment(V(37, 0, 0), V(37, 8, 0)), False)
sketch22.addGeometry(Part.LineSegment(V(37, 8, 0), V(0, 8, 0)), False)
sketch22.addConstraint(Sketcher.Constraint("Coincident", 0, 2, 1, 1))
sketch22.addConstraint(Sketcher.Constraint("Coincident", 1, 2, 2, 1))
sketch22.addConstraint(Sketcher.Constraint("Coincident", 2, 2, 3, 1))
sketch22.addConstraint(Sketcher.Constraint("Coincident", 3, 2, 0, 1))
sketch22.addConstraint(Sketcher.Constraint("Vertical", 0))
sketch22.addConstraint(Sketcher.Constraint("Horizontal", 1))
sketch22.addConstraint(Sketcher.Constraint("Vertical", 2))
sketch22.addConstraint(Sketcher.Constraint("Horizontal", 3))
sketch22.addConstraint(Sketcher.Constraint("Coincident", 0, 2, -1, 1))
sketch22.addConstraint(Sketcher.Constraint("DistanceX", 1, 1, 1, 2, Q("37 mm")))
sketch22.addConstraint(Sketcher.Constraint("DistanceY", 0, 2, 0, 1, Q("8 mm")))
pad22 = body29.newObject("PartDesign::Pad", "Pad021")
pad22.Profile = sketch22
pad22.Length = 12
body30 = doc.addObject("PartDesign::Body", "Body029")

# Sketch on XY plane
sketch23 = body30.newObject("Sketcher::SketchObject", "Sketch022")
sketch23.AttachmentSupport = (doc.getObject("XY_Plane029"), [""])
sketch23.MapMode = "FlatFace"
sketch23.addGeometry(Part.LineSegment(V(0, 34, 0), V(0, 0, 0)), False)
sketch23.addGeometry(Part.LineSegment(V(0, 0, 0), V(184, 0, 0)), False)
sketch23.addGeometry(Part.LineSegment(V(184, 0, 0), V(184, 34, 0)), False)
sketch23.addGeometry(Part.LineSegment(V(184, 34, 0), V(0, 34, 0)), False)
sketch23.addConstraint(Sketcher.Constraint("Coincident", 0, 2, 1, 1))
sketch23.addConstraint(Sketcher.Constraint("Coincident", 1, 2, 2, 1))
sketch23.addConstraint(Sketcher.Constraint("Coincident", 2, 2, 3, 1))
sketch23.addConstraint(Sketcher.Constraint("Coincident", 3, 2, 0, 1))
sketch23.addConstraint(Sketcher.Constraint("Vertical", 0))
sketch23.addConstraint(Sketcher.Constraint("Horizontal", 1))
sketch23.addConstraint(Sketcher.Constraint("Vertical", 2))
sketch23.addConstraint(Sketcher.Constraint("Horizontal", 3))
sketch23.addConstraint(Sketcher.Constraint("Coincident", 0, 2, -1, 1))
sketch23.addConstraint(Sketcher.Constraint("DistanceX", 1, 1, 1, 2, Q("184 mm")))
sketch23.addConstraint(Sketcher.Constraint("DistanceY", 0, 2, 0, 1, Q("34 mm")))
pad23 = body30.newObject("PartDesign::Pad", "Pad022")
pad23.Profile = sketch23
pad23.Length = 6
doc.recompute()

boolean8 = body30.newObject("PartDesign::Boolean", "Boolean007")
boolean8.Type = "Cut"
boolean8.addObjects([body29])
doc.recompute()

boolean9 = body30.newObject("PartDesign::Boolean", "Boolean008")
boolean9.Type = "Cut"
boolean9.addObjects([body28])
doc.recompute()

boolean10 = body30.newObject("PartDesign::Boolean", "Boolean009")
boolean10.Type = "Cut"
boolean10.addObjects([body27])
doc.recompute()

boolean11 = body30.newObject("PartDesign::Boolean", "Boolean010")
boolean11.Type = "Cut"
boolean11.addObjects([body26])
doc.recompute()

boolean12 = body30.newObject("PartDesign::Boolean", "Boolean011")
boolean12.Type = "Cut"
boolean12.addObjects([body25])
doc.recompute()

boolean13 = body30.newObject("PartDesign::Boolean", "Boolean012")
boolean13.Type = "Cut"
boolean13.addObjects([body24])
doc.recompute()

boolean14 = body30.newObject("PartDesign::Boolean", "Boolean013")
boolean14.Type = "Cut"
boolean14.addObjects([body23])
doc.recompute()

boolean15 = body30.newObject("PartDesign::Boolean", "Boolean014")
boolean15.Type = "Cut"
boolean15.addObjects([body21])
doc.recompute()

boolean16 = body30.newObject("PartDesign::Boolean", "Boolean015")
boolean16.Type = "Cut"
boolean16.addObjects([body19])
doc.recompute()

boolean17 = body30.newObject("PartDesign::Boolean", "Boolean016")
boolean17.Type = "Cut"
boolean17.addObjects([body18])
doc.recompute()

boolean18 = body30.newObject("PartDesign::Boolean", "Boolean017")
boolean18.Type = "Cut"
boolean18.addObjects([body16])
doc.recompute()

boolean19 = body30.newObject("PartDesign::Boolean", "Boolean018")
boolean19.Type = "Cut"
boolean19.addObjects([body14])
doc.recompute()

boolean20 = body30.newObject("PartDesign::Boolean", "Boolean019")
boolean20.Type = "Cut"
boolean20.addObjects([body12])
doc.recompute()

boolean21 = body30.newObject("PartDesign::Boolean", "Boolean020")
boolean21.Type = "Cut"
boolean21.addObjects([body11])
doc.recompute()

boolean22 = body30.newObject("PartDesign::Boolean", "Boolean021")
boolean22.Type = "Cut"
boolean22.addObjects([body10])
doc.recompute()

boolean23 = body30.newObject("PartDesign::Boolean", "Boolean022")
boolean23.Type = "Cut"
boolean23.addObjects([body9])
doc.recompute()

boolean24 = body30.newObject("PartDesign::Boolean", "Boolean023")
boolean24.Type = "Cut"
boolean24.addObjects([body8])
doc.recompute()

chamfer = body30.newObject("PartDesign::Chamfer", "Chamfer")
chamfer.Base = (boolean24, edges_at(boolean24, [(7.351, 34, 3)]))
chamfer.Size = 6
doc.recompute()

chamfer2 = body30.newObject("PartDesign::Chamfer", "Chamfer001")
chamfer2.Base = (chamfer, edges_at(chamfer, [(100.251, 34, 3)]))
chamfer2.Size = 1
doc.recompute()

boolean25 = body30.newObject("PartDesign::Boolean", "Boolean024")
boolean25.Type = "Cut"
boolean25.addObjects([body7])
body31 = doc.addObject("PartDesign::Body", "Body030")
doc.recompute()

body30.Placement = App.Placement(V(0, 0, 0), App.Rotation(V(0, 1, 0), 90))
boolean26 = body31.newObject("PartDesign::Boolean", "Boolean025")
boolean26.Type = "Fuse"
boolean26.addObjects([body30])
body32 = doc.addObject("PartDesign::Body", "Body031")
doc.recompute()

body31.Placement = App.Placement(V(-5.5, -24, 171), App.Rotation(V(0, 0, 1), 0))
boolean27 = body32.newObject("PartDesign::Boolean", "Boolean026")
boolean27.Type = "Fuse"
boolean27.addObjects([body31])
doc.recompute()

fillet = body32.newObject("PartDesign::Fillet", "Fillet")
fillet.Base = (boolean27, edges_at(boolean27, [(-2.5, 7.251, 10)]))
fillet.Radius = 3
doc.recompute()

fillet2 = body32.newObject("PartDesign::Fillet", "Fillet001")
fillet2.Base = (fillet, edges_at(fillet, [(-2.5, -7.286, 10)]))
fillet2.Radius = 3
doc.recompute()

boolean28 = body32.newObject("PartDesign::Boolean", "Boolean027")
boolean28.Type = "Cut"
boolean28.addObjects([body6])
body33 = doc.addObject("PartDesign::Body", "Body032")
doc.recompute()

body32.Placement = App.Placement(V(0, 0, 0), App.Rotation(V(1, 0, 0), 315))
boolean29 = body33.newObject("PartDesign::Boolean", "Boolean028")
boolean29.Type = "Fuse"
boolean29.addObjects([body32])
body34 = doc.addObject("PartDesign::Body", "Body033")
doc.recompute()

body33.Placement = App.Placement(V(0, -8, 5), App.Rotation(V(0, 0, 1), 0))
boolean30 = body34.newObject("PartDesign::Boolean", "Boolean029")
boolean30.Type = "Fuse"
boolean30.addObjects([body33])
body35 = doc.addObject("PartDesign::Body", "Body034")

# Sketch on XY plane
sketch24 = body35.newObject("Sketcher::SketchObject", "Sketch023")
sketch24.AttachmentSupport = (doc.getObject("XY_Plane034"), [""])
sketch24.MapMode = "FlatFace"
sketch24.AttachmentOffset = App.Placement(V(0, 0, 10), App.Rotation())
sketch24.addGeometry(Part.LineSegment(V(-5.5, 4.5, 0), V(-5.5, -5.5, 0)), False)
sketch24.addGeometry(Part.LineSegment(V(-5.5, -5.5, 0), V(4.5, -5.5, 0)), False)
sketch24.addGeometry(Part.LineSegment(V(4.5, -5.5, 0), V(4.5, 4.5, 0)), False)
sketch24.addGeometry(Part.LineSegment(V(4.5, 4.5, 0), V(-5.5, 4.5, 0)), False)
sketch24.addConstraint(Sketcher.Constraint("Coincident", 0, 2, 1, 1))
sketch24.addConstraint(Sketcher.Constraint("Coincident", 1, 2, 2, 1))
sketch24.addConstraint(Sketcher.Constraint("Coincident", 2, 2, 3, 1))
sketch24.addConstraint(Sketcher.Constraint("Coincident", 3, 2, 0, 1))
sketch24.addConstraint(Sketcher.Constraint("Vertical", 0))
sketch24.addConstraint(Sketcher.Constraint("Horizontal", 1))
sketch24.addConstraint(Sketcher.Constraint("Vertical", 2))
sketch24.addConstraint(Sketcher.Constraint("Horizontal", 3))
sketch24.addConstraint(Sketcher.Constraint("Equal", 3, 0))
sketch24.addConstraint(Sketcher.Constraint("DistanceX", 1, 1, 1, 2, Q("10 mm")))
sketch24.addConstraint(Sketcher.Constraint("DistanceX", 0, 2, -1, 1, Q("5.5 mm")))
sketch24.addConstraint(Sketcher.Constraint("DistanceY", 0, 2, -1, 1, Q("5.5 mm")))
pad24 = body35.newObject("PartDesign::Pad", "Pad023")
pad24.Profile = sketch24
pad24.Length = 13
doc.recompute()

boolean31 = body35.newObject("PartDesign::Boolean", "Boolean030")
boolean31.Type = "Fuse"
boolean31.addObjects([body34])
doc.recompute()

boolean32 = body35.newObject("PartDesign::Boolean", "Boolean031")
boolean32.Type = "Cut"
boolean32.addObjects([body5])
doc.recompute()

boolean33 = body35.newObject("PartDesign::Boolean", "Boolean032")
boolean33.Type = "Cut"
boolean33.addObjects([body4])
doc.recompute()

chamfer3 = body35.newObject("PartDesign::Chamfer", "Chamfer002")
chamfer3.Base = (boolean33, edges_at(boolean33, [(4.5, 4.5, 16.5)]))
chamfer3.Size = 3
doc.recompute()

chamfer4 = body35.newObject("PartDesign::Chamfer", "Chamfer003")
chamfer4.Base = (chamfer3, edges_at(chamfer3, [(4.5, -5.5, 16.5)]))
chamfer4.Size = 3
doc.recompute()

boolean34 = body35.newObject("PartDesign::Boolean", "Boolean033")
boolean34.Type = "Cut"
boolean34.addObjects([body3])

doc.recompute()
